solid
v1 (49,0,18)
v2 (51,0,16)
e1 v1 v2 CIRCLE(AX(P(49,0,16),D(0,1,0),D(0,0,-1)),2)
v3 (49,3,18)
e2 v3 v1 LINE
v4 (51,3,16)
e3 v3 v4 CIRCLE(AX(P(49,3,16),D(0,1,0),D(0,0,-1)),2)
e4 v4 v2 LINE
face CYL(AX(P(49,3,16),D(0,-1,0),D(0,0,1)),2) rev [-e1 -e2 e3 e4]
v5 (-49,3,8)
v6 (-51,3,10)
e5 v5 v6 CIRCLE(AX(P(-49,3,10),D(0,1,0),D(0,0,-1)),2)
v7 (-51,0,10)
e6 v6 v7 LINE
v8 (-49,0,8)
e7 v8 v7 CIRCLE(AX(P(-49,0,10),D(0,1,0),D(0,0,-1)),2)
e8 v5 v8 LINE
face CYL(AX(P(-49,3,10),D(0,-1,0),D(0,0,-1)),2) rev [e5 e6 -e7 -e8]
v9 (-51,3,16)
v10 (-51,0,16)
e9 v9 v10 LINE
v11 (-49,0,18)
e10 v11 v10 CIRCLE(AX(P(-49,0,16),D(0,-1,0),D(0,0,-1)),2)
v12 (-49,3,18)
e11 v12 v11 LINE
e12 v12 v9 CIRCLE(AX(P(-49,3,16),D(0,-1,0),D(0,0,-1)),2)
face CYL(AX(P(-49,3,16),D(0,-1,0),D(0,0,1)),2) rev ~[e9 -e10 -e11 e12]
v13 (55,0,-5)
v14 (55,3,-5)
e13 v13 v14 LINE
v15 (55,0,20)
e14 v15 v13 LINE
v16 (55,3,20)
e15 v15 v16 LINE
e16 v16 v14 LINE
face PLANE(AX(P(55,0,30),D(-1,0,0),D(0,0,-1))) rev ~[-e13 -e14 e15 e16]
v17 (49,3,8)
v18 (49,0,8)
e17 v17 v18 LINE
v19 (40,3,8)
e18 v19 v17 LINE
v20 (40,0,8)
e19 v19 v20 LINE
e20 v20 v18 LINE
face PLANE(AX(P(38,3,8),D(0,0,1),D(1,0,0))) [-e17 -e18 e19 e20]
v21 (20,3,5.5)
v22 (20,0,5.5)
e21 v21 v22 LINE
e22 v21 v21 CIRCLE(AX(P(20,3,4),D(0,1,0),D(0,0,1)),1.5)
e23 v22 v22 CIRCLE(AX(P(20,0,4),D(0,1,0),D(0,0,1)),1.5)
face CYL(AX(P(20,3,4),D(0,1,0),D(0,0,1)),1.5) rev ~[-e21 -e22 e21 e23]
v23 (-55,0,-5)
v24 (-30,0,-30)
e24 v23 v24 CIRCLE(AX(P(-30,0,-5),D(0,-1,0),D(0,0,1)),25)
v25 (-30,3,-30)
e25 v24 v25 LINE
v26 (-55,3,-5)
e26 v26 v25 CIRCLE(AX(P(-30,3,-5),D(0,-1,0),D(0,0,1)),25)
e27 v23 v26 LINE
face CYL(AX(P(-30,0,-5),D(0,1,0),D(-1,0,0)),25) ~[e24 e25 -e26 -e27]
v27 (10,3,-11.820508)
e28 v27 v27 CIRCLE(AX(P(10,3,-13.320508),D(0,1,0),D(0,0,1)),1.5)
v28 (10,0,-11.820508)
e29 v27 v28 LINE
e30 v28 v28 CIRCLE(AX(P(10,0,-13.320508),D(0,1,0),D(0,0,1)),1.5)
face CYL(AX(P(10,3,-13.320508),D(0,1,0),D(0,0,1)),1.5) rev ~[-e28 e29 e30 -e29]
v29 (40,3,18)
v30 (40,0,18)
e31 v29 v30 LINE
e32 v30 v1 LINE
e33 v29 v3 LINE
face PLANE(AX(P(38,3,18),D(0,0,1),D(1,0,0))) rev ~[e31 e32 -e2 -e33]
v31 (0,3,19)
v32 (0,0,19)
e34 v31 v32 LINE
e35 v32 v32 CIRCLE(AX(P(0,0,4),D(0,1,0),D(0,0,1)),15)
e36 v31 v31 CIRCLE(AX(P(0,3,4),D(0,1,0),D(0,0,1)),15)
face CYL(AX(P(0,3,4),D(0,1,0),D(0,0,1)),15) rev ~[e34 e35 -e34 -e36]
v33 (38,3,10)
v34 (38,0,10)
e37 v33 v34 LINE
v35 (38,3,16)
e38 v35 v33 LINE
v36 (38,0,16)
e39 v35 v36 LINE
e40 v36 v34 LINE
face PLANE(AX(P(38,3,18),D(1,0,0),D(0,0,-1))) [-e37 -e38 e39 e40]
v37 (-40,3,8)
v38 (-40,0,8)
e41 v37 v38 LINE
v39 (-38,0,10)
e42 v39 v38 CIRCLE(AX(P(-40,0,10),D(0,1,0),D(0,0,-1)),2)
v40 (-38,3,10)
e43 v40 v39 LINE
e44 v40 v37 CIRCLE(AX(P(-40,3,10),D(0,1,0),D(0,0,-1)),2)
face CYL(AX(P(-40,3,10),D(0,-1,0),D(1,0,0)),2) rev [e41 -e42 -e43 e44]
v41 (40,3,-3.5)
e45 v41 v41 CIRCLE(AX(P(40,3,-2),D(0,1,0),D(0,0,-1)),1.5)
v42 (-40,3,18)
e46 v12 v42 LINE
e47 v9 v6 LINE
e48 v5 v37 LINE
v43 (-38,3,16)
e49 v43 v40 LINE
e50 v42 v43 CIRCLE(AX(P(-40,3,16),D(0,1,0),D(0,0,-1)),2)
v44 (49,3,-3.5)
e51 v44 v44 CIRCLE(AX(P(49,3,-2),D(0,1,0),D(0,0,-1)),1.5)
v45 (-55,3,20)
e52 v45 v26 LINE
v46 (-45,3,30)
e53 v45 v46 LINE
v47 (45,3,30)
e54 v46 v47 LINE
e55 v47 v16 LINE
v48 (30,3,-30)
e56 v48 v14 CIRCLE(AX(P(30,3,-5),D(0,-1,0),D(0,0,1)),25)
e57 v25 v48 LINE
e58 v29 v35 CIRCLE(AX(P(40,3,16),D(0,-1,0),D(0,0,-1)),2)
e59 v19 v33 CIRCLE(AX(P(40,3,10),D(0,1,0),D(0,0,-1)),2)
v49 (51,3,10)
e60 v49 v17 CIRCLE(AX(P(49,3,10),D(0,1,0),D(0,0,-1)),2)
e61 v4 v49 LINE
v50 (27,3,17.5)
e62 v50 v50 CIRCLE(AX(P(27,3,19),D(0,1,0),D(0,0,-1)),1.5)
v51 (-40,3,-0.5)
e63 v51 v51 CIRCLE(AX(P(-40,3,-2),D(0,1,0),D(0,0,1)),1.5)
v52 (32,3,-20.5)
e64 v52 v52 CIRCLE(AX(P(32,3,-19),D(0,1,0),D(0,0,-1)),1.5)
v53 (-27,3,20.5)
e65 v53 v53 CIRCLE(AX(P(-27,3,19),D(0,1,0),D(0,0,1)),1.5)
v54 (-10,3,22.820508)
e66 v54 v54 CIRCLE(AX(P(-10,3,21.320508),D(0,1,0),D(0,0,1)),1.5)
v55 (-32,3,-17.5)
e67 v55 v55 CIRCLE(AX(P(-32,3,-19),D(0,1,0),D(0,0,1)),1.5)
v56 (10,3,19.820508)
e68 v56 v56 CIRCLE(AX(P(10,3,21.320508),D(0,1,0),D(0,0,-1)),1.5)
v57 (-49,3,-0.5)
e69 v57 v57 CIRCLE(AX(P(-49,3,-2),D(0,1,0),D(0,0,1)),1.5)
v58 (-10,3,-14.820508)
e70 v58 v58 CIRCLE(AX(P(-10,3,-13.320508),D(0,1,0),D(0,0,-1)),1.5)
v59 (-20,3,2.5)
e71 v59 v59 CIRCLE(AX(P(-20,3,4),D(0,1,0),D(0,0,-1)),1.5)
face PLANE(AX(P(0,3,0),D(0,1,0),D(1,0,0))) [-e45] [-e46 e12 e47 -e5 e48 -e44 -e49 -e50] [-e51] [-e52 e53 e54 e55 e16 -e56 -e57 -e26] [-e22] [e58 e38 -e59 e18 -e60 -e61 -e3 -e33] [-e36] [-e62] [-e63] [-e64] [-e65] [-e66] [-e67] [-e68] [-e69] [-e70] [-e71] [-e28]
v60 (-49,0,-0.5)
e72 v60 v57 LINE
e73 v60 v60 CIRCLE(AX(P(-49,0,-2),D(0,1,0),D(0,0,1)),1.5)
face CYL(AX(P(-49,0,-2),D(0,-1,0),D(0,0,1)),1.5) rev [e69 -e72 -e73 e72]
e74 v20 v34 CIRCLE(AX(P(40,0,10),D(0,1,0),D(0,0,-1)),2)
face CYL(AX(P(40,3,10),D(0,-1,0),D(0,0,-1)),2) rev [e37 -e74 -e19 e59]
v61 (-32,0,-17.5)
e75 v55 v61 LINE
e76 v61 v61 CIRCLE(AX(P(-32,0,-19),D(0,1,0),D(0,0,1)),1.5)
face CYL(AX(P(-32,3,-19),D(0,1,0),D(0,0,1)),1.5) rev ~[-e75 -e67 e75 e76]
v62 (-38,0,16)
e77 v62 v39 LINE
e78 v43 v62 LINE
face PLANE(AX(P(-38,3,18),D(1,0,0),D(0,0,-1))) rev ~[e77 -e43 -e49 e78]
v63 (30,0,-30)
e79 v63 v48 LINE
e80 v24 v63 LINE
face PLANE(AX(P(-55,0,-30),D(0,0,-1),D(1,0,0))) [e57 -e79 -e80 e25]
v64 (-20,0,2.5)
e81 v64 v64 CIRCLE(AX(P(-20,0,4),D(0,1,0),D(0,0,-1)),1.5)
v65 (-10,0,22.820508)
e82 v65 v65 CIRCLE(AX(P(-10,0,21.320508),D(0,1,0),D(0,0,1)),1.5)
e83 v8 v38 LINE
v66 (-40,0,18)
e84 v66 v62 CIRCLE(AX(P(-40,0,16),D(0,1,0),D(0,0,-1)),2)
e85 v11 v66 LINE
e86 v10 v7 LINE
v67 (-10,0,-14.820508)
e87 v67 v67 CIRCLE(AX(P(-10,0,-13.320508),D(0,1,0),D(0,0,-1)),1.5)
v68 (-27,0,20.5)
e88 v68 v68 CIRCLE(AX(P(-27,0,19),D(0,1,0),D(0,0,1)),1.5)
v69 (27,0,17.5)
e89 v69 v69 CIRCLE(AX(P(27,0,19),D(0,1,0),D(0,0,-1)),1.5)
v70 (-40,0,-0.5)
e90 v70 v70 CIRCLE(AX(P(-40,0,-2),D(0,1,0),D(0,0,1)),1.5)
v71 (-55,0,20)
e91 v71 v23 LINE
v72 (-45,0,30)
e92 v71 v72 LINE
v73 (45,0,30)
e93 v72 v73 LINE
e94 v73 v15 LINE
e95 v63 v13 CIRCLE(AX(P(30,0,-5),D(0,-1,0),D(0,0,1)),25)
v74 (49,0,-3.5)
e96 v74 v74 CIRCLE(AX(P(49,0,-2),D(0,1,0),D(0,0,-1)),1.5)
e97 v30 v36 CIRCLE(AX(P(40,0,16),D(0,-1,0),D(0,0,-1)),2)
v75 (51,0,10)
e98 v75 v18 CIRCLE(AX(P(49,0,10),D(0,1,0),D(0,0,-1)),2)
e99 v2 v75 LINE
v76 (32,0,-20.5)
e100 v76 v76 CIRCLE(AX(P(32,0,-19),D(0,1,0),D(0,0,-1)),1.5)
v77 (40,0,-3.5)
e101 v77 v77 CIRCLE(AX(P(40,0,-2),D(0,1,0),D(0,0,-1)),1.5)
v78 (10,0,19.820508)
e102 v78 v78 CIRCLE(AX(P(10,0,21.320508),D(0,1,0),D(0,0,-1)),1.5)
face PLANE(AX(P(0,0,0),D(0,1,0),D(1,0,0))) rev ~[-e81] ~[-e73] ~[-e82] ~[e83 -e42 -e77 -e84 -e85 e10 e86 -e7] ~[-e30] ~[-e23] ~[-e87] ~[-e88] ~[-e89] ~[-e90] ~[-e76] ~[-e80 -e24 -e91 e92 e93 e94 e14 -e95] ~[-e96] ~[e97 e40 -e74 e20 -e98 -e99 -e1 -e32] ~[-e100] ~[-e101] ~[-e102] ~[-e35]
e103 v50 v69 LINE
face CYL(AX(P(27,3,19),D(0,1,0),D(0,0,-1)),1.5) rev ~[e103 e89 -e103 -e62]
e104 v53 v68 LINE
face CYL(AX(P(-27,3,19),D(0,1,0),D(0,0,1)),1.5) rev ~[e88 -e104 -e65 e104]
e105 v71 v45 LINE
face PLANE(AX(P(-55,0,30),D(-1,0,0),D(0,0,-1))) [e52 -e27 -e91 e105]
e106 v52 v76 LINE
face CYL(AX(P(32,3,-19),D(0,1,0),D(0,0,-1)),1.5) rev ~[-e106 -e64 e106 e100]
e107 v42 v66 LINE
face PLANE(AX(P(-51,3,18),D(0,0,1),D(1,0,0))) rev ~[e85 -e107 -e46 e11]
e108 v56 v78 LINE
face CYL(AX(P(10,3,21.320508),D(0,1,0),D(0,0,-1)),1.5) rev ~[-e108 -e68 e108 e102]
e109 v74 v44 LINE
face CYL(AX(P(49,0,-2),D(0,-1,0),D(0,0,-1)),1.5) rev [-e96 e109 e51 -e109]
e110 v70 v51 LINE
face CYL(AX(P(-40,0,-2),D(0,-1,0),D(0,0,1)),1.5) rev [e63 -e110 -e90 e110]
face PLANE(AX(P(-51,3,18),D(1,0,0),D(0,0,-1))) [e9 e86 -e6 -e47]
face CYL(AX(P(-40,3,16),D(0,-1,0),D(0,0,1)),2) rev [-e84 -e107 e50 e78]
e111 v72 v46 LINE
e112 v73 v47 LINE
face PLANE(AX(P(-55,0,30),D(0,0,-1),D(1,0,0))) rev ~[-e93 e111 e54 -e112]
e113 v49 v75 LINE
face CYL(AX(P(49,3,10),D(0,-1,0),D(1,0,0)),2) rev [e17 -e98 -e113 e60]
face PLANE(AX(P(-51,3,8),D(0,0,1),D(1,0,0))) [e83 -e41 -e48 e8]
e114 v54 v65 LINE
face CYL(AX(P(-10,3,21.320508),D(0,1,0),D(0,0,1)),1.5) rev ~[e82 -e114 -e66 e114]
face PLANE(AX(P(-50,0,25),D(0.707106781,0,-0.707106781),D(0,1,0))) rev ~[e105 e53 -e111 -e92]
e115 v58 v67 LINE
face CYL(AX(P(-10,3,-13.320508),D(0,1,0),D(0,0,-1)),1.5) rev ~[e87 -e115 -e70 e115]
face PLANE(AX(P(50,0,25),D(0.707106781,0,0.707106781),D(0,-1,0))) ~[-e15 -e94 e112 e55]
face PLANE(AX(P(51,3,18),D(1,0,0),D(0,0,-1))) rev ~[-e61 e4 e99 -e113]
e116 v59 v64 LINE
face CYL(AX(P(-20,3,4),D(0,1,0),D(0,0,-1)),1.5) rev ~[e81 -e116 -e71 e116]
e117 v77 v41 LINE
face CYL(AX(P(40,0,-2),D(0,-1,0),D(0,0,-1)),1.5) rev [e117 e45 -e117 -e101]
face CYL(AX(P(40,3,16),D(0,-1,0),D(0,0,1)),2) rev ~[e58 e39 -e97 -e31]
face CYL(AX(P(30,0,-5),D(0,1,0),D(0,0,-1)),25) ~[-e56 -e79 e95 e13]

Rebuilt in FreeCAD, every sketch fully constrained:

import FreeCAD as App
import Part
import Sketcher
Q = App.Units.Quantity


def edges_at(feature, points):
    """Names of the edges that pass closest to the given points."""
    edges = feature.Shape.Edges
    near = lambda p: min(range(len(edges)), key=lambda i: edges[i].distToShape(Part.Vertex(*p))[0])
    return sorted({f"Edge{near(p) + 1}" for p in points})

doc = App.newDocument("Part")
body = doc.addObject("PartDesign::Body", "Body")

# Sketch on XZ plane
sketch1 = doc.addObject("Sketcher::SketchObject", "Sketch")
body.addObject(sketch1)
sketch1.AttachmentSupport = (doc.XZ_Plane, [""])
sketch1.MapMode = "FlatFace"
sketch1.addGeometry([
    Part.LineSegment(App.Vector(-55, -30, 0), App.Vector(-55, 30, 0)),  # 0
    Part.LineSegment(App.Vector(-55, 30, 0), App.Vector(55, 30, 0)),  # 1
    Part.LineSegment(App.Vector(55, 30, 0), App.Vector(55, -30, 0)),  # 2
    Part.LineSegment(App.Vector(55, -30, 0), App.Vector(-55, -30, 0)),  # 3
    Part.Circle(App.Vector(-49, -2, 0), App.Vector(0, 0, 1), 1.5),  # 4
    Part.Circle(App.Vector(-40, -2, 0), App.Vector(0, 0, 1), 1.5),  # 5
    Part.Circle(App.Vector(40, -2, 0), App.Vector(0, 0, 1), 1.5),  # 6
    Part.Circle(App.Vector(49, -2, 0), App.Vector(0, 0, 1), 1.5),  # 7
], False)
sketch1.addConstraint([
    Sketcher.Constraint("Coincident", 0, 2, 1, 1),
    Sketcher.Constraint("Coincident", 1, 2, 2, 1),
    Sketcher.Constraint("Coincident", 2, 2, 3, 1),
    Sketcher.Constraint("Coincident", 3, 2, 0, 1),
    Sketcher.Constraint("Vertical", 0),
    Sketcher.Constraint("Horizontal", 1),
    Sketcher.Constraint("Vertical", 2),
    Sketcher.Constraint("Horizontal", 3),
    Sketcher.Constraint("Equal", 4, 5),
    Sketcher.Constraint("Equal", 5, 6),
    Sketcher.Constraint("Equal", 6, 7),
    Sketcher.Constraint("Symmetric", 0, 2, 2, 2, -1, 1),
    Sketcher.Constraint("Symmetric", 5, 3, 6, 3, -2),
    Sketcher.Constraint("Symmetric", 4, 3, 7, 3, -2),
    Sketcher.Constraint("Horizontal", 4, 3, 5, 3),
    Sketcher.Constraint("Diameter", 4, Q("3 mm")),
    Sketcher.Constraint("DistanceX", 1, 1, 1, 2, Q("110 mm")),
    Sketcher.Constraint("DistanceY", 0, 1, 0, 2, Q("60 mm")),
    Sketcher.Constraint("DistanceX", 4, 3, -1, 1, Q("49 mm")),
    Sketcher.Constraint("DistanceY", 4, 3, -1, 1, Q("2 mm")),
    Sketcher.Constraint("DistanceX", 5, 3, -1, 1, Q("40 mm")),
])
pad1 = doc.addObject("PartDesign::Pad", "Pad")
body.addObject(pad1)
pad1.Profile = sketch1
pad1.Length = 3
pad1.Reversed = True
doc.recompute()

fillet = doc.addObject("PartDesign::Fillet", "Fillet")
body.addObject(fillet)
fillet.Base = (pad1, edges_at(pad1, [(-55, 1.5, -30), (55, 1.5, -30)]))
fillet.Radius = 25
doc.recompute()

chamfer = doc.addObject("PartDesign::Chamfer", "Chamfer")
body.addObject(chamfer)
chamfer.Base = (fillet, edges_at(fillet, [(55, 1.5, 30), (-55, 1.5, 30)]))
chamfer.Size = 10

# Sketch on XZ plane
sketch2 = doc.addObject("Sketcher::SketchObject", "Sketch001")
body.addObject(sketch2)
sketch2.AttachmentSupport = (doc.XZ_Plane, [""])
sketch2.MapMode = "FlatFace"
sketch2.AttachmentOffset = App.Placement(App.Vector(0, 0, -3), App.Rotation())
sketch2.addGeometry([
    Part.Circle(App.Vector(-32, -19, 0), App.Vector(0, 0, 1), 1.5),
    Part.Circle(App.Vector(-27, 19, 0), App.Vector(0, 0, 1), 1.5),
    Part.Circle(App.Vector(27, 19, 0), App.Vector(0, 0, 1), 1.5),
    Part.Circle(App.Vector(32, -19, 0), App.Vector(0, 0, 1), 1.5),
], False)
sketch2.addConstraint([
    Sketcher.Constraint("Equal", 0, 1),
    Sketcher.Constraint("Equal", 1, 2),
    Sketcher.Constraint("Equal", 2, 3),
    Sketcher.Constraint("Symmetric", 1, 3, 2, 3, -2),
    Sketcher.Constraint("Symmetric", 0, 3, 3, 3, -2),
    Sketcher.Constraint("Diameter", 0, Q("3 mm")),
    Sketcher.Constraint("DistanceX", 0, 3, -1, 1, Q("32 mm")),
    Sketcher.Constraint("DistanceY", 0, 3, -1, 1, Q("19 mm")),
    Sketcher.Constraint("DistanceX", 1, 3, -1, 1, Q("27 mm")),
    Sketcher.Constraint("DistanceY", -1, 1, 1, 3, Q("19 mm")),
])
pocket1 = doc.addObject("PartDesign::Pocket", "Pocket")
body.addObject(pocket1)
pocket1.Profile = sketch2
pocket1.Length = 3
pocket1.Reversed = True

# Sketch on XZ plane
sketch3 = doc.addObject("Sketcher::SketchObject", "Sketch002")
body.addObject(sketch3)
sketch3.AttachmentSupport = (doc.XZ_Plane, [""])
sketch3.MapMode = "FlatFace"
sketch3.AttachmentOffset = App.Placement(App.Vector(0, 0, -3), App.Rotation())
sketch3.addGeometry([
    Part.LineSegment(App.Vector(-51, 8, 0), App.Vector(-51, 18, 0)),  # 0
    Part.LineSegment(App.Vector(-51, 18, 0), App.Vector(-38, 18, 0)),  # 1
    Part.LineSegment(App.Vector(-38, 18, 0), App.Vector(-38, 8, 0)),  # 2
    Part.LineSegment(App.Vector(-38, 8, 0), App.Vector(-51, 8, 0)),  # 3
    Part.LineSegment(App.Vector(38, 8, 0), App.Vector(38, 18, 0)),  # 4
    Part.LineSegment(App.Vector(38, 18, 0), App.Vector(51, 18, 0)),  # 5
    Part.LineSegment(App.Vector(51, 18, 0), App.Vector(51, 8, 0)),  # 6
    Part.LineSegment(App.Vector(51, 8, 0), App.Vector(38, 8, 0)),  # 7
], False)
sketch3.addConstraint([
    Sketcher.Constraint("Coincident", 0, 2, 1, 1),
    Sketcher.Constraint("Coincident", 1, 2, 2, 1),
    Sketcher.Constraint("Coincident", 2, 2, 3, 1),
    Sketcher.Constraint("Coincident", 3, 2, 0, 1),
    Sketcher.Constraint("Coincident", 4, 2, 5, 1),
    Sketcher.Constraint("Coincident", 5, 2, 6, 1),
    Sketcher.Constraint("Coincident", 6, 2, 7, 1),
    Sketcher.Constraint("Coincident", 7, 2, 4, 1),
    Sketcher.Constraint("Vertical", 0),
    Sketcher.Constraint("Horizontal", 1),
    Sketcher.Constraint("Vertical", 2),
    Sketcher.Constraint("Horizontal", 3),
    Sketcher.Constraint("Vertical", 4),
    Sketcher.Constraint("Horizontal", 5),
    Sketcher.Constraint("Vertical", 6),
    Sketcher.Constraint("Horizontal", 7),
    Sketcher.Constraint("Symmetric", 1, 2, 4, 2, -2),
    Sketcher.Constraint("Symmetric", 3, 2, 6, 2, -2),
    Sketcher.Constraint("DistanceX", 1, 1, 1, 2, Q("13 mm")),
    Sketcher.Constraint("DistanceY", 0, 1, 0, 2, Q("10 mm")),
    Sketcher.Constraint("DistanceX", 0, 2, -1, 1, Q("51 mm")),
    Sketcher.Constraint("DistanceY", -1, 1, 0, 2, Q("18 mm")),
])
pocket2 = doc.addObject("PartDesign::Pocket", "Pocket001")
body.addObject(pocket2)
pocket2.Profile = sketch3
pocket2.Length = 10
pocket2.Reversed = True
doc.recompute()

fillet2 = doc.addObject("PartDesign::Fillet", "Fillet001")
body.addObject(fillet2)
fillet2.Base = (pocket2, edges_at(pocket2, [
    (-38, 1.5, 8),
    (-38, 1.5, 18),
    (-51, 1.5, 18),
    (-51, 1.5, 8),
    (51, 1.5, 8),
    (51, 1.5, 18),
    (38, 1.5, 18),
    (38, 1.5, 8),
]))
fillet2.Radius = 2

# Sketch on XZ plane
sketch4 = doc.addObject("Sketcher::SketchObject", "Sketch003")
body.addObject(sketch4)
sketch4.AttachmentSupport = (doc.XZ_Plane, [""])
sketch4.MapMode = "FlatFace"
sketch4.AttachmentOffset = App.Placement(App.Vector(0, 0, -3), App.Rotation())
sketch4.addGeometry([
    Part.Circle(App.Vector(20, 4, 0), App.Vector(0, 0, 1), 1.5),  # 0
    Part.Circle(App.Vector(10, -13.320508, 0), App.Vector(0, 0, 1), 1.5),  # 1
    Part.Circle(App.Vector(-20, 4, 0), App.Vector(0, 0, 1), 1.5),  # 2
    Part.Circle(App.Vector(-10, -13.320508, 0), App.Vector(0, 0, 1), 1.5),  # 3
    Part.Circle(App.Vector(10, 21.320508, 0), App.Vector(0, 0, 1), 1.5),  # 4
    Part.Circle(App.Vector(-10, 21.320508, 0), App.Vector(0, 0, 1), 1.5),  # 5
    Part.Circle(App.Vector(0, 4, 0), App.Vector(0, 0, 1), 15),  # 6
], False)
sketch4.addConstraint([
    Sketcher.Constraint("Equal", 0, 1),
    Sketcher.Constraint("Equal", 1, 2),
    Sketcher.Constraint("Equal", 2, 3),
    Sketcher.Constraint("Equal", 3, 4),
    Sketcher.Constraint("Equal", 4, 5),
    Sketcher.Constraint("Symmetric", 0, 3, 2, 3, -2),
    Sketcher.Constraint("Symmetric", 1, 3, 3, 3, -2),
    Sketcher.Constraint("Symmetric", 4, 3, 5, 3, -2),
    Sketcher.Constraint("PointOnObject", 6, 3, -2),
    Sketcher.Constraint("Horizontal", 2, 3, 6, 3),
    Sketcher.Constraint("Vertical", 1, 3, 4, 3),
    Sketcher.Constraint("Diameter", 0, Q("3 mm")),
    Sketcher.Constraint("Diameter", 6, Q("30 mm")),
    Sketcher.Constraint("DistanceX", -1, 1, 0, 3, Q("20 mm")),
    Sketcher.Constraint("DistanceY", -1, 1, 0, 3, Q("4 mm")),
    Sketcher.Constraint("DistanceX", -1, 1, 1, 3, Q("10 mm")),
    Sketcher.Constraint("DistanceY", 1, 3, -1, 1, Q("13.320508 mm")),
    Sketcher.Constraint("DistanceY", -1, 1, 4, 3, Q("21.320508 mm")),
])
pocket3 = doc.addObject("PartDesign::Pocket", "Pocket002")
body.addObject(pocket3)
pocket3.Profile = sketch4
pocket3.Length = 3
pocket3.Reversed = True

doc.recompute()
